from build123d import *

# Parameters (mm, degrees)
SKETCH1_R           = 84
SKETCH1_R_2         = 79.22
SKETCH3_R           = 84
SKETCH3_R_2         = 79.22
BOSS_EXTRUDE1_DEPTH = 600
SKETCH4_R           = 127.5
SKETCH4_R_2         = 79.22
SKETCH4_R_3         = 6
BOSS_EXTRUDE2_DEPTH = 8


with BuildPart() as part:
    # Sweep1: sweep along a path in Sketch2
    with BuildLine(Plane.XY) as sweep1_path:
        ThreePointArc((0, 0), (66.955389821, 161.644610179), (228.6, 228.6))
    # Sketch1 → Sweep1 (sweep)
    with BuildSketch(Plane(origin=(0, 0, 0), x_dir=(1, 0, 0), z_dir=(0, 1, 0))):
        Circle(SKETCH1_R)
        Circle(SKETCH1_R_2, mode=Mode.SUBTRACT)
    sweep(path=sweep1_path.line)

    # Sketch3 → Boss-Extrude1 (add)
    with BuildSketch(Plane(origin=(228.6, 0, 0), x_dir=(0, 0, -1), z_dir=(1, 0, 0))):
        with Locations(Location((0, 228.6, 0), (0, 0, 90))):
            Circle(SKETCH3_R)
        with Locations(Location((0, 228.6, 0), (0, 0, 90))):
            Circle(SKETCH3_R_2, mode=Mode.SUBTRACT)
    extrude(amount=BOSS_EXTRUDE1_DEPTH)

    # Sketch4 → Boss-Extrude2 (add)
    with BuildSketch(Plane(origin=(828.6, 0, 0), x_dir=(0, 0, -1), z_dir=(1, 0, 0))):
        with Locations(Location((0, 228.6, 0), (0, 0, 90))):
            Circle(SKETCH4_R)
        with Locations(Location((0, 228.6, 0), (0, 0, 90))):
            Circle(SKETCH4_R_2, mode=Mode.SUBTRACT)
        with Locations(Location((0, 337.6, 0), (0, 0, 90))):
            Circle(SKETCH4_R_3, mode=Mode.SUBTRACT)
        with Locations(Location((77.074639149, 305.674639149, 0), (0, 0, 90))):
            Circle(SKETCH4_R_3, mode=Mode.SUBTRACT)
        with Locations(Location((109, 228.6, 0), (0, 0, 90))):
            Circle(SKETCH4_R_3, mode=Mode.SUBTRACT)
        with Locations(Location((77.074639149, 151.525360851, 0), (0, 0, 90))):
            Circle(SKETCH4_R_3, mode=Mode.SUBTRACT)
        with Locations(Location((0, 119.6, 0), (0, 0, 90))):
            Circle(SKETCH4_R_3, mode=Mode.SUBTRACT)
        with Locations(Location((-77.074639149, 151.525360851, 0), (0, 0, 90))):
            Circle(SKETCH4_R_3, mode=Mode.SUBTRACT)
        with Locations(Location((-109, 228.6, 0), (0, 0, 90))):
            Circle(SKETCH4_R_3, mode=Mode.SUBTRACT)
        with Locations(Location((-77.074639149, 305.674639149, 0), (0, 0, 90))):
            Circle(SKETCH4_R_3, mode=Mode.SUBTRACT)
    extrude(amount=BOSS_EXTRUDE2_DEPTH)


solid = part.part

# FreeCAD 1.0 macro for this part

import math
import FreeCAD as App
import Part
import Sketcher

doc = App.newDocument("Part")
body = doc.addObject("PartDesign::Body", "Body")

# Sketch on XZ plane
sketch1 = doc.addObject("Sketcher::SketchObject", "Sketch")
body.addObject(sketch1)
sketch1.AttachmentSupport = (doc.XZ_Plane, [""])
sketch1.MapMode = "FlatFace"
sketch1.addGeometry(Part.Circle(App.Vector(0, 0, 0), App.Vector(0, 0, 1), 84), False)
sketch1.addGeometry(Part.Circle(App.Vector(0, 0, 0), App.Vector(0, 0, 1), 79), False)
sketch1.addConstraint(Sketcher.Constraint("Coincident", 0, 3, -1, 1))
sketch1.addConstraint(Sketcher.Constraint("Coincident", 1, 3, -1, 1))
sketch1.addConstraint(Sketcher.Constraint("Diameter", 0, 168.0))
sketch1.addConstraint(Sketcher.Constraint("Diameter", 1, 158.44))

# Sketch on XY plane
sketch2 = doc.addObject("Sketcher::SketchObject", "Sketch001")
body.addObject(sketch2)
sketch2.AttachmentSupport = (doc.XY_Plane, [""])
sketch2.MapMode = "FlatFace"
sketch2.addGeometry(Part.ArcOfCircle(Part.Circle(App.Vector(229, 0, 0), App.Vector(0, 0, 1), 229), math.radians(90), math.radians(180)), False)
sketch2.addConstraint(Sketcher.Constraint("Coincident", 0, 2, -1, 1))
sketch2.addConstraint(Sketcher.Constraint("PointOnObject", 0, 3, -1))
sketch2.addConstraint(Sketcher.Constraint("Radius", 0, 228.6))
sketch2.addConstraint(Sketcher.Constraint("DistanceX", -1, 1, 0, 1, 228.6))
doc.recompute()

additivepipe = doc.addObject("PartDesign::AdditivePipe", "AdditivePipe")
body.addObject(additivepipe)
additivepipe.Profile = sketch1
additivepipe.Spine = (sketch2, ["Edge1"])

# Sketch on YZ plane
sketch3 = doc.addObject("Sketcher::SketchObject", "Sketch002")
body.addObject(sketch3)
sketch3.AttachmentSupport = (doc.YZ_Plane, [""])
sketch3.MapMode = "FlatFace"
sketch3.AttachmentOffset = App.Placement(App.Vector(0, 0, 228.6), App.Rotation())
sketch3.addGeometry(Part.Circle(App.Vector(229, 0, 0), App.Vector(0, 0, 1), 84), False)
sketch3.addGeometry(Part.Circle(App.Vector(229, 0, 0), App.Vector(0, 0, 1), 79), False)
sketch3.addConstraint(Sketcher.Constraint("Coincident", 1, 3, 0, 3))
sketch3.addConstraint(Sketcher.Constraint("PointOnObject", 0, 3, -1))
sketch3.addConstraint(Sketcher.Constraint("Diameter", 0, 168.0))
sketch3.addConstraint(Sketcher.Constraint("Diameter", 1, 158.44))
sketch3.addConstraint(Sketcher.Constraint("DistanceX", -1, 1, 0, 3, 228.6))
pad1 = doc.addObject("PartDesign::Pad", "Pad")
body.addObject(pad1)
pad1.Profile = sketch3
pad1.Length = 600

# Sketch on YZ plane
sketch4 = doc.addObject("Sketcher::SketchObject", "Sketch003")
body.addObject(sketch4)
sketch4.AttachmentSupport = (doc.YZ_Plane, [""])
sketch4.MapMode = "FlatFace"
sketch4.AttachmentOffset = App.Placement(App.Vector(0, 0, 828.6), App.Rotation())
sketch4.addGeometry(Part.Circle(App.Vector(229, 0, 0), App.Vector(0, 0, 1), 128), False)
sketch4.addGeometry(Part.Circle(App.Vector(152, -77, 0), App.Vector(0, 0, 1), 6), False)
sketch4.addGeometry(Part.Circle(App.Vector(120, 0, 0), App.Vector(0, 0, 1), 6), False)
sketch4.addGeometry(Part.Circle(App.Vector(229, -109, 0), App.Vector(0, 0, 1), 6), False)
sketch4.addGeometry(Part.Circle(App.Vector(306, -77, 0), App.Vector(0, 0, 1), 6), False)
sketch4.addGeometry(Part.Circle(App.Vector(229, 0, 0), App.Vector(0, 0, 1), 79), False)
sketch4.addGeometry(Part.Circle(App.Vector(152, 77, 0), App.Vector(0, 0, 1), 6), False)
sketch4.addGeometry(Part.Circle(App.Vector(229, 109, 0), App.Vector(0, 0, 1), 6), False)
sketch4.addGeometry(Part.Circle(App.Vector(338, 0, 0), App.Vector(0, 0, 1), 6), False)
sketch4.addGeometry(Part.Circle(App.Vector(306, 77, 0), App.Vector(0, 0, 1), 6), False)
sketch4.addConstraint(Sketcher.Constraint("Coincident", 5, 3, 0, 3))
sketch4.addConstraint(Sketcher.Constraint("Equal", 1, 2))
sketch4.addConstraint(Sketcher.Constraint("Equal", 2, 3))
sketch4.addConstraint(Sketcher.Constraint("Equal", 3, 4))
sketch4.addConstraint(Sketcher.Constraint("Equal", 4, 6))
sketch4.addConstraint(Sketcher.Constraint("Equal", 6, 7))
sketch4.addConstraint(Sketcher.Constraint("Equal", 7, 8))
sketch4.addConstraint(Sketcher.Constraint("Equal", 8, 9))
sketch4.addConstraint(Sketcher.Constraint("Symmetric", 1, 3, 6, 3, -1))
sketch4.addConstraint(Sketcher.Constraint("Symmetric", 3, 3, 7, 3, -1))
sketch4.addConstraint(Sketcher.Constraint("Symmetric", 4, 3, 9, 3, -1))
sketch4.addConstraint(Sketcher.Constraint("PointOnObject", 0, 3, -1))
sketch4.addConstraint(Sketcher.Constraint("PointOnObject", 2, 3, -1))
sketch4.addConstraint(Sketcher.Constraint("PointOnObject", 8, 3, -1))
sketch4.addConstraint(Sketcher.Constraint("Horizontal", 1, 3, 4, 3))
sketch4.addConstraint(Sketcher.Constraint("Vertical", 0, 3, 3, 3))
sketch4.addConstraint(Sketcher.Constraint("Diameter", 0, 255.0))
sketch4.addConstraint(Sketcher.Constraint("Diameter", 1, 12.0))
sketch4.addConstraint(Sketcher.Constraint("Diameter", 5, 158.44))
sketch4.addConstraint(Sketcher.Constraint("DistanceY", 3, 3, -1, 1, 109.0))
sketch4.addConstraint(Sketcher.Constraint("DistanceX", 2, 3, 0, 3, 109.0))
sketch4.addConstraint(Sketcher.Constraint("DistanceX", 0, 3, 8, 3, 109.0))
sketch4.addConstraint(Sketcher.Constraint("DistanceX", -1, 1, 0, 3, 228.6))
sketch4.addConstraint(Sketcher.Constraint("DistanceX", -1, 1, 1, 3, 151.525361))
sketch4.addConstraint(Sketcher.Constraint("DistanceY", 1, 3, -1, 1, 77.074639))
sketch4.addConstraint(Sketcher.Constraint("DistanceX", -1, 1, 4, 3, 305.674639))
pad2 = doc.addObject("PartDesign::Pad", "Pad001")
body.addObject(pad2)
pad2.Profile = sketch4
pad2.Length = 8

doc.recompute()
